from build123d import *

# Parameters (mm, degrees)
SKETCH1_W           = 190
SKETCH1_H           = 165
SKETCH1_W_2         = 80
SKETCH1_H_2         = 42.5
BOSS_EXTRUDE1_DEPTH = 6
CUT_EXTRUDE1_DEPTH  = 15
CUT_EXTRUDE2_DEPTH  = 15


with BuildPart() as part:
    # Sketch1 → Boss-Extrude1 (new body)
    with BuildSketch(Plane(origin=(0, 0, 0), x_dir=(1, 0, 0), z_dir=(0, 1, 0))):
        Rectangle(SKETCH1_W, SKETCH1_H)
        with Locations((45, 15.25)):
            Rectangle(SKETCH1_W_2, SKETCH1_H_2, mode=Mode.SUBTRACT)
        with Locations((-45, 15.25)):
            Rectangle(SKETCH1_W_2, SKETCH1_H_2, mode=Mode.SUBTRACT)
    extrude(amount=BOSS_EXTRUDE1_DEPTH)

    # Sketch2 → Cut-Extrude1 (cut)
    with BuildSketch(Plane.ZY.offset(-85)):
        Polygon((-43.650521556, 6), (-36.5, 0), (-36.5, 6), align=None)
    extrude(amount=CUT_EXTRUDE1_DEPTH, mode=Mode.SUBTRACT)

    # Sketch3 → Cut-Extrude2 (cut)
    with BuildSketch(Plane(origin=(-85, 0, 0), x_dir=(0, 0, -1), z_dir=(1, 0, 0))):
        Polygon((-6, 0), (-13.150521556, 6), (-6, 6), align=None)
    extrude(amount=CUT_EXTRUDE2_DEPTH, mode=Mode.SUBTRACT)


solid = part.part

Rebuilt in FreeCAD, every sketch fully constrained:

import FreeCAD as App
import Part
import Sketcher
from FreeCAD import Vector
Q = App.Units.Quantity


def add_polygon(sketch, points):
    """Adds a closed chain of lines whose ends are joined by coincident constraints."""
    first, n = sketch.GeometryCount, len(points)
    for a, b in zip(points, points[1:] + points[:1]):
        sketch.addGeometry(Part.LineSegment(App.Vector(*a, 0), App.Vector(*b, 0)), False)
    for i in range(n):
        sketch.addConstraint(Sketcher.Constraint("Coincident", first + i, 2, first + (i + 1) % n, 1))

doc = App.newDocument("Part")
body = doc.addObject("PartDesign::Body", "Body")

# Sketch on XZ plane
sketch1 = body.newObject("Sketcher::SketchObject", "Sketch")
sketch1.AttachmentSupport = (doc.getObject("XZ_Plane"), [""])
sketch1.MapMode = "FlatFace"
add_polygon(sketch1, [(-95, -82), (-95, 82), (95, 82), (95, -82)])  # lines 0-3
add_polygon(sketch1, [(-5, 6), (-85, 6), (-85, -36), (-5, -36)])  # lines 4-7
add_polygon(sketch1, [(85, 6), (5, 6), (5, -36), (85, -36)])  # lines 8-11
sketch1.addConstraint([
    Sketcher.Constraint("Vertical", 0),
    Sketcher.Constraint("Horizontal", 1),
    Sketcher.Constraint("Vertical", 2),
    Sketcher.Constraint("Horizontal", 3),
    Sketcher.Constraint("Horizontal", 4),
    Sketcher.Constraint("Vertical", 5),
    Sketcher.Constraint("Horizontal", 6),
    Sketcher.Constraint("Vertical", 7),
    Sketcher.Constraint("Horizontal", 8),
    Sketcher.Constraint("Vertical", 9),
    Sketcher.Constraint("Horizontal", 10),
    Sketcher.Constraint("Vertical", 11),
    Sketcher.Constraint("Symmetric", 0, 2, 2, 2, -1, 1),
    Sketcher.Constraint("Symmetric", 7, 2, 8, 2, -2),
    Sketcher.Constraint("Symmetric", 5, 2, 10, 2, -2),
    Sketcher.Constraint("DistanceX", 1, 1, 1, 2, Q("190 mm")),
    Sketcher.Constraint("DistanceX", 4, 2, 4, 1, Q("80 mm")),
    Sketcher.Constraint("DistanceY", 0, 1, 0, 2, Q("165 mm")),
    Sketcher.Constraint("DistanceY", 5, 2, 5, 1, Q("42.5 mm")),
    Sketcher.Constraint("DistanceX", 4, 2, -1, 1, Q("85 mm")),
    Sketcher.Constraint("DistanceY", -1, 1, 4, 2, Q("6 mm")),
])
pad1 = body.newObject("PartDesign::Pad", "Pad")
pad1.Profile = sketch1
pad1.Length = 6
pad1.Reversed = True

# Sketch on YZ plane
sketch2 = body.newObject("Sketcher::SketchObject", "Sketch001")
sketch2.AttachmentSupport = (doc.getObject("YZ_Plane"), [""])
sketch2.MapMode = "FlatFace"
sketch2.AttachmentOffset = App.Placement(Vector(0, 0, 85), App.Rotation())
add_polygon(sketch2, [(6, -44), (0, -36), (6, -36)])  # lines 0-2
sketch2.addConstraint([
    Sketcher.Constraint("Horizontal", 1),
    Sketcher.Constraint("Vertical", 2),
    Sketcher.Constraint("PointOnObject", 0, 2, -2),
    Sketcher.Constraint("DistanceX", 1, 1, 1, 2, Q("6 mm")),
    Sketcher.Constraint("Angle", 0, Q("130 deg")),
    Sketcher.Constraint("DistanceY", 0, 2, -1, 1, Q("36.5 mm")),
])
pocket1 = body.newObject("PartDesign::Pocket", "Pocket")
pocket1.Profile = sketch2
pocket1.Length = 15

# Sketch on YZ plane
sketch3 = body.newObject("Sketcher::SketchObject", "Sketch002")
sketch3.AttachmentSupport = (doc.getObject("YZ_Plane"), [""])
sketch3.MapMode = "FlatFace"
sketch3.AttachmentOffset = App.Placement(Vector(0, 0, -85), App.Rotation())
add_polygon(sketch3, [(6, 13), (0, 6), (6, 6)])  # lines 0-2
sketch3.addConstraint([
    Sketcher.Constraint("Horizontal", 1),
    Sketcher.Constraint("Vertical", 2),
    Sketcher.Constraint("PointOnObject", 0, 2, -2),
    Sketcher.Constraint("DistanceX", 1, 1, 1, 2, Q("6 mm")),
    Sketcher.Constraint("Angle", 0, Q("-130 deg")),
    Sketcher.Constraint("DistanceY", -1, 1, 0, 2, Q("6 mm")),
])
pocket2 = body.newObject("PartDesign::Pocket", "Pocket001")
pocket2.Profile = sketch3
pocket2.Length = 15
pocket2.Reversed = True

doc.recompute()
